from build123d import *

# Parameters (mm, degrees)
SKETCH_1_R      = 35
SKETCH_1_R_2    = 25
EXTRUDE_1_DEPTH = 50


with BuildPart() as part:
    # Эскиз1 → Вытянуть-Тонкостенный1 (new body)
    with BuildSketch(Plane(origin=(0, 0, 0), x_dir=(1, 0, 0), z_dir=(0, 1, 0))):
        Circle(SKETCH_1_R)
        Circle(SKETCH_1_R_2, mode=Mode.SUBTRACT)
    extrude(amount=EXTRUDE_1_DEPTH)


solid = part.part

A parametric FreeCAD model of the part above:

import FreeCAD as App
import Part
import Sketcher
from FreeCAD import Vector

doc = App.newDocument("Part")
body = doc.addObject("PartDesign::Body", "Body")

sketch1 = body.newObject("Sketcher::SketchObject", "Sketch")
sketch1.AttachmentSupport = (doc.getObject("XZ_Plane"), [""])
sketch1.MapMode = "FlatFace"
sketch1.addGeometry(Part.Circle(Vector(0, 0, 0), Vector(0, 0, 1), 35), False)
sketch1.addGeometry(Part.Circle(Vector(0, 0, 0), Vector(0, 0, 1), 25), False)
sketch1.addConstraint(Sketcher.Constraint("Coincident", 0, 3, -1, 1))
sketch1.addConstraint(Sketcher.Constraint("Coincident", 1, 3, -1, 1))
sketch1.addConstraint(Sketcher.Constraint("Diameter", 0, 70.0))
sketch1.addConstraint(Sketcher.Constraint("Diameter", 1, 50.0))
pad1 = body.newObject("PartDesign::Pad", "Pad")
pad1.Profile = sketch1
pad1.Length = 50
pad1.Reversed = True

doc.recompute()
